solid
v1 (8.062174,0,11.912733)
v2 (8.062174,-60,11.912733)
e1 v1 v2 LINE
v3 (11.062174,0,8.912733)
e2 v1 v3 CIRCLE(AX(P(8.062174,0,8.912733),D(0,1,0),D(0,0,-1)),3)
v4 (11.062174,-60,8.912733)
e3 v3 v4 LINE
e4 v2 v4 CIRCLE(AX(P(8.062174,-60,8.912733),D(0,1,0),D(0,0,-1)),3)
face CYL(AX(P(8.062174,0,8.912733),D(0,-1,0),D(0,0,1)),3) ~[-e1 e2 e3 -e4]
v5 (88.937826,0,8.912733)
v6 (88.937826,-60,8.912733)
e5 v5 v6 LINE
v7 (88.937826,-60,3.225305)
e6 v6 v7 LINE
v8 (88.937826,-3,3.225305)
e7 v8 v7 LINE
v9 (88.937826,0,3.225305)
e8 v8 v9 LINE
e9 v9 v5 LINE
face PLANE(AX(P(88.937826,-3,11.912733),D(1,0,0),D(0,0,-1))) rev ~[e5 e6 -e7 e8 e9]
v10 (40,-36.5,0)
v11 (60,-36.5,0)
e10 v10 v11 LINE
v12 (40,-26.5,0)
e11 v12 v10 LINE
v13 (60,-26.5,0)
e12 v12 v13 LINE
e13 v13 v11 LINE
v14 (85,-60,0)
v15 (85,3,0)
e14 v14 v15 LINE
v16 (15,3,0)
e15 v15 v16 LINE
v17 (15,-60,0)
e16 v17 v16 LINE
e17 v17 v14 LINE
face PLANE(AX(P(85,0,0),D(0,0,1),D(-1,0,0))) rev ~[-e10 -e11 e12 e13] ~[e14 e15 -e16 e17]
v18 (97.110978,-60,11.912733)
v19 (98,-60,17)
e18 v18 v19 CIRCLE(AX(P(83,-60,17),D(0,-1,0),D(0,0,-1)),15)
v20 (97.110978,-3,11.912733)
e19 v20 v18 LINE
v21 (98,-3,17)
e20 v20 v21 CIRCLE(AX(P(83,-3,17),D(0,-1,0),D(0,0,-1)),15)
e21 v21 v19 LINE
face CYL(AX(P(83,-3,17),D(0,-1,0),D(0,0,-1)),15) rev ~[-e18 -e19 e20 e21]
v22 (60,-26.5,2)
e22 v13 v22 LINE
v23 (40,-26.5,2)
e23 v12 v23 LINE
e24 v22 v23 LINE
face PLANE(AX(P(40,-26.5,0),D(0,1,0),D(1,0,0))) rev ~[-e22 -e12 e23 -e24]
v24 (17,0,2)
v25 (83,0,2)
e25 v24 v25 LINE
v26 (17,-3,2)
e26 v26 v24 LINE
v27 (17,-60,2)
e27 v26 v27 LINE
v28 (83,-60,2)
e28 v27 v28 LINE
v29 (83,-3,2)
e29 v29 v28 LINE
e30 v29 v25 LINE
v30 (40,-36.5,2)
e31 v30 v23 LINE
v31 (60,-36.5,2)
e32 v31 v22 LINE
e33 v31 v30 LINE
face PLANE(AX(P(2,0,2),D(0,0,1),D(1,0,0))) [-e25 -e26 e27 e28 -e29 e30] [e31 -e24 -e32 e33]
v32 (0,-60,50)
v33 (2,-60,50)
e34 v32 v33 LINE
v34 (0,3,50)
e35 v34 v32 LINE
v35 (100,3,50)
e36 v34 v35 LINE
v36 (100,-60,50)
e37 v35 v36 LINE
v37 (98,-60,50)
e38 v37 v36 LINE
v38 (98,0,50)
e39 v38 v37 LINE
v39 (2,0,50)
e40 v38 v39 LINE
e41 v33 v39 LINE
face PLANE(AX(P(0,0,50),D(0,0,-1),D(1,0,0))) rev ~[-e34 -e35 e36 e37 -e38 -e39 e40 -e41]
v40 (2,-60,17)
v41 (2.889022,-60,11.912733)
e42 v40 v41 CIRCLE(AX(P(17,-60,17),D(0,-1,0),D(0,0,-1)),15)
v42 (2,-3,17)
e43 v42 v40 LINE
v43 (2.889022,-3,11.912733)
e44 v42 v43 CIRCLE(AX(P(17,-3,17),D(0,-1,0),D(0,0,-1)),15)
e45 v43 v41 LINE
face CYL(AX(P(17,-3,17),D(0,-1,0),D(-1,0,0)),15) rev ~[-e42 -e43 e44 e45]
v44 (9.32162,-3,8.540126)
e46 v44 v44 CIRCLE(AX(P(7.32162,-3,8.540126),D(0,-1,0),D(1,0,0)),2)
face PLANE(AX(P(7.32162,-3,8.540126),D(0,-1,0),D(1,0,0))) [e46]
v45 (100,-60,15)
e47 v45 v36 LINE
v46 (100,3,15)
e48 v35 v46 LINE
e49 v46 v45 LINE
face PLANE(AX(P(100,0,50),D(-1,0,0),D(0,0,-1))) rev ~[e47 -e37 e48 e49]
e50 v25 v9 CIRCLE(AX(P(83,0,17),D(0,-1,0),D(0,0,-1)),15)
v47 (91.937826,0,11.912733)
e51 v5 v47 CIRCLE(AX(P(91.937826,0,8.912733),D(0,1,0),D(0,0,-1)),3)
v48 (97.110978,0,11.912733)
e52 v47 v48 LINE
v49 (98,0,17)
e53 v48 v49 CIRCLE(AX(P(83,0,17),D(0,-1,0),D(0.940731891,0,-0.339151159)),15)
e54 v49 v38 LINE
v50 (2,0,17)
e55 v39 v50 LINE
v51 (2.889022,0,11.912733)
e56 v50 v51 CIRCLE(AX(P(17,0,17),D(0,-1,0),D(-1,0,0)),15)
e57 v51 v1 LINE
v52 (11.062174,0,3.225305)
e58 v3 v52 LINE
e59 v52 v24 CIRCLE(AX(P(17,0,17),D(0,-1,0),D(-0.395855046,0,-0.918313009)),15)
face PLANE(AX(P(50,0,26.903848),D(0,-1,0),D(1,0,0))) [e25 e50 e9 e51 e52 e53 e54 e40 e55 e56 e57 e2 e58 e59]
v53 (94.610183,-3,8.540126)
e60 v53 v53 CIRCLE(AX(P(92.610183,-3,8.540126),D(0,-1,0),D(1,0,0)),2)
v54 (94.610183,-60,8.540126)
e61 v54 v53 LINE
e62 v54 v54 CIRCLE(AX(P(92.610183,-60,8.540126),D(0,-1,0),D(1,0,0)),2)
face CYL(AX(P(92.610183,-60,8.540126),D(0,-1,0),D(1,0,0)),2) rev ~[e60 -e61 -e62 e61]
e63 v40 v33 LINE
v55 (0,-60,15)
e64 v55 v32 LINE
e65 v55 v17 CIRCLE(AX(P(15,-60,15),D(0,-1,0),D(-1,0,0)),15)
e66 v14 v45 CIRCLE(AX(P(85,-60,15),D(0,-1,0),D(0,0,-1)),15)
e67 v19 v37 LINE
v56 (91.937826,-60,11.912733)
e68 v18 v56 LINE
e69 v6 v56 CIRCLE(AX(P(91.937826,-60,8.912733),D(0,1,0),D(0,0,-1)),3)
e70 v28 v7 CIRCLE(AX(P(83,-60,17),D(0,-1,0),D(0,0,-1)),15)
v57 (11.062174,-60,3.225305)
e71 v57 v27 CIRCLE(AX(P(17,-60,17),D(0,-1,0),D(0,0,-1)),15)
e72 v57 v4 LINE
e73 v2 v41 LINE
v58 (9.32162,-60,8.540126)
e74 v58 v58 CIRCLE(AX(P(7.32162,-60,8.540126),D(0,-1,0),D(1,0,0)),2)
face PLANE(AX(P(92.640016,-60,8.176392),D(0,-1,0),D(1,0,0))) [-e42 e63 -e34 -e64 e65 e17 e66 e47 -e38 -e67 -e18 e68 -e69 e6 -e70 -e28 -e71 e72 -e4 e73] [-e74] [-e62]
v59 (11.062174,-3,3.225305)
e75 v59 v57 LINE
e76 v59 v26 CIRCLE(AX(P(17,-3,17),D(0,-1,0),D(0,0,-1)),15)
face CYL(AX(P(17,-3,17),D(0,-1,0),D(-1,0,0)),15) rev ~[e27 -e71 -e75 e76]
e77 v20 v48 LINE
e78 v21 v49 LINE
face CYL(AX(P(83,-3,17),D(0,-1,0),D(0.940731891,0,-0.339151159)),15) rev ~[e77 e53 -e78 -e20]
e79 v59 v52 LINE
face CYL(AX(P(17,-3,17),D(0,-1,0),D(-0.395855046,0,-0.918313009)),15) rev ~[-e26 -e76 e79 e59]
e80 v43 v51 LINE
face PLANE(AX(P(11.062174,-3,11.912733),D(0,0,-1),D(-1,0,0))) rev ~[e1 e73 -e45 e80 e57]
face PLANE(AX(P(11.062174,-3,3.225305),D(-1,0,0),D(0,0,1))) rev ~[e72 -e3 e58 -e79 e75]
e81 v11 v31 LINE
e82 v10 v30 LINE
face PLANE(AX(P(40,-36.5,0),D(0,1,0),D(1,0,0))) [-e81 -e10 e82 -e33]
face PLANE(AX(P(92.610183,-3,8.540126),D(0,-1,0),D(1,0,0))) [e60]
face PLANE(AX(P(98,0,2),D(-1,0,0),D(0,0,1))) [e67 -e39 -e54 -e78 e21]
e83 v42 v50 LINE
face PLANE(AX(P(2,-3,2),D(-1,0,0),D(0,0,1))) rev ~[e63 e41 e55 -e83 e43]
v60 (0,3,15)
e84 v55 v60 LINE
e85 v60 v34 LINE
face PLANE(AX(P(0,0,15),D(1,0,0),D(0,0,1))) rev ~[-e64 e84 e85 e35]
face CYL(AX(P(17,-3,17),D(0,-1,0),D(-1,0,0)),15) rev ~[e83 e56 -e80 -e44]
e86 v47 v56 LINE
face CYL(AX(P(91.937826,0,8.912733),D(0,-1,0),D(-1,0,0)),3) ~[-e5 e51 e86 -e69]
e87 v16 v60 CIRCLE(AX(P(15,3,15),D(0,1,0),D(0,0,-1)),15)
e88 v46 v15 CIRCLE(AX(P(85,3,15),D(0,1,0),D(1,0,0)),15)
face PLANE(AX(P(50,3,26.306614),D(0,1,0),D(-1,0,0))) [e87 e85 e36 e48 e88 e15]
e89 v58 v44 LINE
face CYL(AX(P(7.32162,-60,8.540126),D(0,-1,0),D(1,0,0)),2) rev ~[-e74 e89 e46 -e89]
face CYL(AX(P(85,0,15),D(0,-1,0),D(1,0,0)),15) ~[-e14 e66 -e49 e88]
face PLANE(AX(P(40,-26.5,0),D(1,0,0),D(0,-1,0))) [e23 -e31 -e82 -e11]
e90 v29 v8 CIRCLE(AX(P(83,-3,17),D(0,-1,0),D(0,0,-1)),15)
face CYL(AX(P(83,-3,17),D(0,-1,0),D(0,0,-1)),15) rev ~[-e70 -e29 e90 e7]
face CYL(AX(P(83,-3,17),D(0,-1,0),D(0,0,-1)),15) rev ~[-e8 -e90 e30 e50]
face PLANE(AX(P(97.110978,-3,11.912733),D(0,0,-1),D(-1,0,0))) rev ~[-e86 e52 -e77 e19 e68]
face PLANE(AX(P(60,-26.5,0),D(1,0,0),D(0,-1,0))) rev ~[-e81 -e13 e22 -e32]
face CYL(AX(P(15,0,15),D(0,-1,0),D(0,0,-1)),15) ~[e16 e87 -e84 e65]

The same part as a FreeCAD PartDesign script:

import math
import FreeCAD as App
import Part
import Sketcher
from FreeCAD import Vector


def edges_at(feature, points):
    """Names of the edges that pass closest to the given points."""
    edges = feature.Shape.Edges
    near = lambda p: min(range(len(edges)), key=lambda i: edges[i].distToShape(Part.Vertex(*p))[0])
    return sorted({f"Edge{near(p) + 1}" for p in points})

doc = App.newDocument("Part")
params = doc.addObject("Spreadsheet::Sheet", "Params")
for row, (alias, value) in enumerate([
    ("sketch1_width", "100 mm"),
    ("sketch1_width2", "96 mm"),
    ("sketch1_height", "50 mm"),
    ("sketch1_height2", "46 mm"),
    ("pad1_length", "65 mm"),
    ("sketch2_width", "100 mm"),
    ("pocket1_length", "62.6 mm"),
    ("sketch3_width", "100 mm"),
    ("sketch3_height", "50 mm"),
    ("pad2_length", "3 mm"),
    ("sketch4_width", "96 mm"),
    ("pocket2_length", "80.8 mm"),
    ("sketch5_width", "100 mm"),
    ("pad3_length", "5 mm"),
    ("pocket3_length", "2 mm"),
    ("sketch7_width", "20 mm"),
    ("sketch7_height", "10 mm"),
    ("pocket4_length", "25 mm"),
    ("sketch8_radius", "5 mm"),
    ("sketch8_diameter", "4.4 mm"),
    ("sketch8_height", "10 mm"),
    ("pad4_length", "3 mm"),
    ("fillet_radius", "5 mm"),
    ("fillet2_radius", "15 mm"),
    ("sketch9_diameter", "3 mm"),
    ("pocket5_length", "25 mm"),
    ("pad5_length", "57 mm"),
    ("sketch12_diameter", "4 mm"),
    ("pocket7_length", "57 mm"),
    ("sketch13_radius", "15 mm"),
    ("sketch13_width", "70 mm"),
    ("sketch13_height", "35 mm"),
    ("pad6_length", "3 mm"),
    ("sketch14_radius", "15 mm"),
    ("sketch14_width", "66 mm"),
    ("sketch14_height", "33 mm"),
    ("pocket8_length", "3 mm"),
    ("fillet3_radius", "3 mm"),
], start=1):
    params.set(f"A{row}", alias)
    params.set(f"B{row}", "=" + value)
    params.setAlias(f"B{row}", alias)

body = doc.addObject("PartDesign::Body", "Body")

# Sketch on XZ plane
sketch1 = body.newObject("Sketcher::SketchObject", "Sketch")
sketch1.AttachmentSupport = (doc.getObject("XZ_Plane"), [""])
sketch1.MapMode = "FlatFace"
sketch1.addGeometry([
    Part.LineSegment(Vector(0, 50, 0), Vector(0, 0, 0)),  # 0
    Part.LineSegment(Vector(0, 0, 0), Vector(100, 0, 0)),  # 1
    Part.LineSegment(Vector(100, 0, 0), Vector(100, 50, 0)),  # 2
    Part.LineSegment(Vector(100, 50, 0), Vector(0, 50, 0)),  # 3
    Part.LineSegment(Vector(98, 2, 0), Vector(2, 2, 0)),  # 4
    Part.LineSegment(Vector(2, 2, 0), Vector(2, 48, 0)),  # 5
    Part.LineSegment(Vector(2, 48, 0), Vector(98, 48, 0)),  # 6
    Part.LineSegment(Vector(98, 48, 0), Vector(98, 2, 0)),  # 7
], False)
sketch1.addConstraint([
    Sketcher.Constraint("Coincident", 0, 2, 1, 1),
    Sketcher.Constraint("Coincident", 1, 2, 2, 1),
    Sketcher.Constraint("Coincident", 2, 2, 3, 1),
    Sketcher.Constraint("Coincident", 3, 2, 0, 1),
    Sketcher.Constraint("Coincident", 4, 2, 5, 1),
    Sketcher.Constraint("Coincident", 5, 2, 6, 1),
    Sketcher.Constraint("Coincident", 6, 2, 7, 1),
    Sketcher.Constraint("Coincident", 7, 2, 4, 1),
    Sketcher.Constraint("Vertical", 0),
    Sketcher.Constraint("Horizontal", 1),
    Sketcher.Constraint("Vertical", 2),
    Sketcher.Constraint("Horizontal", 3),
    Sketcher.Constraint("Horizontal", 4),
    Sketcher.Constraint("Vertical", 5),
    Sketcher.Constraint("Horizontal", 6),
    Sketcher.Constraint("Vertical", 7),
    Sketcher.Constraint("Coincident", 0, 2, -1, 1),
    Sketcher.Constraint("DistanceX", 1, 1, 1, 2, 100.0),
    Sketcher.Constraint("DistanceX", 4, 2, 4, 1, 96.0),
    Sketcher.Constraint("DistanceY", 0, 2, 0, 1, 50.0),
    Sketcher.Constraint("DistanceY", 5, 1, 5, 2, 46.0),
    Sketcher.Constraint("DistanceX", -1, 1, 4, 2, 2.0),
    Sketcher.Constraint("DistanceY", -1, 1, 4, 2, 2.0),
])
sketch1.setExpression("Constraints[17]", "Params.sketch1_width")
sketch1.setExpression("Constraints[18]", "Params.sketch1_width2")
sketch1.setExpression("Constraints[19]", "Params.sketch1_height")
sketch1.setExpression("Constraints[20]", "Params.sketch1_height2")
pad1 = body.newObject("PartDesign::Pad", "Pad")
pad1.Profile = sketch1
pad1.setExpression("Length", "Params.pad1_length")

# Sketch on XZ plane
sketch2 = body.newObject("Sketcher::SketchObject", "Sketch001")
sketch2.AttachmentSupport = (doc.getObject("XZ_Plane"), [""])
sketch2.MapMode = "FlatFace"
sketch2.AttachmentOffset = App.Placement(Vector(0, 0, 65), App.Rotation())
sketch2.addGeometry([
    Part.LineSegment(Vector(0, 0, 0), Vector(0, -8.599863, 0)),
    Part.LineSegment(Vector(0, -8.599863, 0), Vector(100, -8.599863, 0)),
    Part.LineSegment(Vector(100, -8.599863, 0), Vector(100, 0, 0)),
    Part.LineSegment(Vector(100, 0, 0), Vector(0, 0, 0)),
], False)
sketch2.addConstraint([
    Sketcher.Constraint("Coincident", 0, 2, 1, 1),
    Sketcher.Constraint("Coincident", 1, 2, 2, 1),
    Sketcher.Constraint("Coincident", 2, 2, 3, 1),
    Sketcher.Constraint("Coincident", 3, 2, 0, 1),
    Sketcher.Constraint("Vertical", 0),
    Sketcher.Constraint("Horizontal", 1),
    Sketcher.Constraint("Vertical", 2),
    Sketcher.Constraint("Horizontal", 3),
    Sketcher.Constraint("Coincident", 3, 2, -1, 1),
    Sketcher.Constraint("DistanceX", 1, 1, 1, 2, 100.0),
    Sketcher.Constraint("DistanceY", 0, 2, 0, 1, 8.599863),
])
sketch2.setExpression("Constraints[9]", "Params.sketch2_width")
pocket1 = body.newObject("PartDesign::Pocket", "Pocket")
pocket1.Profile = sketch2
pocket1.setExpression("Length", "Params.pocket1_length")

# Sketch on XZ plane
sketch3 = body.newObject("Sketcher::SketchObject", "Sketch002")
sketch3.AttachmentSupport = (doc.getObject("XZ_Plane"), [""])
sketch3.MapMode = "FlatFace"
sketch3.addGeometry([
    Part.LineSegment(Vector(100, 50, 0), Vector(100, 0, 0)),
    Part.LineSegment(Vector(100, 0, 0), Vector(0, 0, 0)),
    Part.LineSegment(Vector(0, 0, 0), Vector(0, 50, 0)),
    Part.LineSegment(Vector(0, 50, 0), Vector(100, 50, 0)),
], False)
sketch3.addConstraint([
    Sketcher.Constraint("Coincident", 0, 2, 1, 1),
    Sketcher.Constraint("Coincident", 1, 2, 2, 1),
    Sketcher.Constraint("Coincident", 2, 2, 3, 1),
    Sketcher.Constraint("Coincident", 3, 2, 0, 1),
    Sketcher.Constraint("Vertical", 0),
    Sketcher.Constraint("Horizontal", 1),
    Sketcher.Constraint("Vertical", 2),
    Sketcher.Constraint("Horizontal", 3),
    Sketcher.Constraint("Coincident", 1, 2, -1, 1),
    Sketcher.Constraint("DistanceX", 1, 2, 1, 1, 100.0),
    Sketcher.Constraint("DistanceY", 0, 2, 0, 1, 50.0),
])
sketch3.setExpression("Constraints[9]", "Params.sketch3_width")
sketch3.setExpression("Constraints[10]", "Params.sketch3_height")
pad2 = body.newObject("PartDesign::Pad", "Pad001")
pad2.Profile = sketch3
pad2.setExpression("Length", "Params.pad2_length")

# Sketch on XZ plane
sketch4 = body.newObject("Sketcher::SketchObject", "Sketch003")
sketch4.AttachmentSupport = (doc.getObject("XZ_Plane"), [""])
sketch4.MapMode = "FlatFace"
sketch4.AttachmentOffset = App.Placement(Vector(0, 0, 3), App.Rotation())
sketch4.addGeometry([
    Part.LineSegment(Vector(2, 55.983376, 0), Vector(2, 2, 0)),
    Part.LineSegment(Vector(2, 2, 0), Vector(98, 2, 0)),
    Part.LineSegment(Vector(98, 2, 0), Vector(98, 55.983376, 0)),
    Part.LineSegment(Vector(98, 55.983376, 0), Vector(2, 55.983376, 0)),
], False)
sketch4.addConstraint([
    Sketcher.Constraint("Coincident", 0, 2, 1, 1),
    Sketcher.Constraint("Coincident", 1, 2, 2, 1),
    Sketcher.Constraint("Coincident", 2, 2, 3, 1),
    Sketcher.Constraint("Coincident", 3, 2, 0, 1),
    Sketcher.Constraint("Vertical", 0),
    Sketcher.Constraint("Horizontal", 1),
    Sketcher.Constraint("Vertical", 2),
    Sketcher.Constraint("Horizontal", 3),
    Sketcher.Constraint("DistanceX", 1, 1, 1, 2, 96.0),
    Sketcher.Constraint("DistanceX", -1, 1, 0, 2, 2.0),
    Sketcher.Constraint("DistanceY", -1, 1, 0, 2, 2.0),
    Sketcher.Constraint("DistanceY", 0, 2, 0, 1, 53.983376),
])
sketch4.setExpression("Constraints[8]", "Params.sketch4_width")
pocket2 = body.newObject("PartDesign::Pocket", "Pocket001")
pocket2.Profile = sketch4
pocket2.setExpression("Length", "Params.pocket2_length")
pocket2.Reversed = True

# Sketch on XZ plane
sketch5 = body.newObject("Sketcher::SketchObject", "Sketch004")
sketch5.AttachmentSupport = (doc.getObject("XZ_Plane"), [""])
sketch5.MapMode = "FlatFace"
sketch5.AttachmentOffset = App.Placement(Vector(0, 0, 65), App.Rotation())
sketch5.addGeometry([
    Part.LineSegment(Vector(0, 100, 0), Vector(0, 0, 0)),
    Part.LineSegment(Vector(0, 0, 0), Vector(100, 0, 0)),
    Part.LineSegment(Vector(100, 0, 0), Vector(100, 100, 0)),
    Part.LineSegment(Vector(100, 100, 0), Vector(0, 100, 0)),
], False)
sketch5.addConstraint([
    Sketcher.Constraint("Coincident", 0, 2, 1, 1),
    Sketcher.Constraint("Coincident", 1, 2, 2, 1),
    Sketcher.Constraint("Coincident", 2, 2, 3, 1),
    Sketcher.Constraint("Coincident", 3, 2, 0, 1),
    Sketcher.Constraint("Vertical", 0),
    Sketcher.Constraint("Horizontal", 1),
    Sketcher.Constraint("Vertical", 2),
    Sketcher.Constraint("Horizontal", 3),
    Sketcher.Constraint("Coincident", 0, 2, -1, 1),
    Sketcher.Constraint("Equal", 3, 0),
    Sketcher.Constraint("DistanceX", 1, 1, 1, 2, 100.0),
])
sketch5.setExpression("Constraints[10]", "Params.sketch5_width")
pad3 = body.newObject("PartDesign::Pad", "Pad002")
pad3.Profile = sketch5
pad3.setExpression("Length", "Params.pad3_length")
pad3.Reversed = True

# Sketch on XZ plane
sketch6 = body.newObject("Sketcher::SketchObject", "Sketch005")
sketch6.AttachmentSupport = (doc.getObject("XZ_Plane"), [""])
sketch6.MapMode = "FlatFace"
sketch6.AttachmentOffset = App.Placement(Vector(0, 0, 65), App.Rotation())
sketch6.addGeometry([
    Part.LineSegment(Vector(-47.050785, 135.277823, 0), Vector(-47.050785, -36.624499, 0)),
    Part.LineSegment(Vector(-47.050785, -36.624499, 0), Vector(131.936267, -36.624499, 0)),
    Part.LineSegment(Vector(131.936267, -36.624499, 0), Vector(131.936267, 135.277823, 0)),
    Part.LineSegment(Vector(131.936267, 135.277823, 0), Vector(-47.050785, 135.277823, 0)),
], False)
sketch6.addConstraint([
    Sketcher.Constraint("Coincident", 0, 2, 1, 1),
    Sketcher.Constraint("Coincident", 1, 2, 2, 1),
    Sketcher.Constraint("Coincident", 2, 2, 3, 1),
    Sketcher.Constraint("Coincident", 3, 2, 0, 1),
    Sketcher.Constraint("Vertical", 0),
    Sketcher.Constraint("Horizontal", 1),
    Sketcher.Constraint("Vertical", 2),
    Sketcher.Constraint("Horizontal", 3),
    Sketcher.Constraint("DistanceY", 0, 2, 0, 1, 171.902321),
    Sketcher.Constraint("DistanceY", 0, 2, -1, 1, 36.624499),
    Sketcher.Constraint("DistanceX", 1, 1, 1, 2, 178.987052),
    Sketcher.Constraint("DistanceX", 0, 2, -1, 1, 47.050785),
])
pocket3 = body.newObject("PartDesign::Pocket", "Pocket002")
pocket3.Profile = sketch6
pocket3.setExpression("Length", "Params.pocket3_length")

# Sketch on XY plane
sketch7 = body.newObject("Sketcher::SketchObject", "Sketch006")
sketch7.AttachmentSupport = (doc.getObject("XY_Plane"), [""])
sketch7.MapMode = "FlatFace"
sketch7.addGeometry([
    Part.LineSegment(Vector(40, -36.5, 0), Vector(40, -26.5, 0)),
    Part.LineSegment(Vector(40, -26.5, 0), Vector(60, -26.5, 0)),
    Part.LineSegment(Vector(60, -26.5, 0), Vector(60, -36.5, 0)),
    Part.LineSegment(Vector(60, -36.5, 0), Vector(40, -36.5, 0)),
], False)
sketch7.addConstraint([
    Sketcher.Constraint("Coincident", 0, 2, 1, 1),
    Sketcher.Constraint("Coincident", 1, 2, 2, 1),
    Sketcher.Constraint("Coincident", 2, 2, 3, 1),
    Sketcher.Constraint("Coincident", 3, 2, 0, 1),
    Sketcher.Constraint("Vertical", 0),
    Sketcher.Constraint("Horizontal", 1),
    Sketcher.Constraint("Vertical", 2),
    Sketcher.Constraint("Horizontal", 3),
    Sketcher.Constraint("DistanceX", 1, 1, 1, 2, 20.0),
    Sketcher.Constraint("DistanceY", 0, 1, 0, 2, 10.0),
    Sketcher.Constraint("DistanceX", -1, 1, 0, 2, 40.0),
    Sketcher.Constraint("DistanceY", 0, 2, -1, 1, 26.5),
])
sketch7.setExpression("Constraints[8]", "Params.sketch7_width")
sketch7.setExpression("Constraints[9]", "Params.sketch7_height")
pocket4 = body.newObject("PartDesign::Pocket", "Pocket003")
pocket4.Profile = sketch7
pocket4.setExpression("Length", "Params.pocket4_length")
pocket4.Reversed = True

# Sketch on XZ plane
sketch8 = body.newObject("Sketcher::SketchObject", "Sketch007")
sketch8.AttachmentSupport = (doc.getObject("XZ_Plane"), [""])
sketch8.MapMode = "FlatFace"
sketch8.AttachmentOffset = App.Placement(Vector(0, 0, 63), App.Rotation())
sketch8.addGeometry([
    Part.ArcOfCircle(Part.Circle(Vector(105.66751, 65.550245, 0), Vector(0, 0, 1), 5), math.radians(-93.81287), math.radians(-86.18713)),  # 0
    Part.ArcOfCircle(Part.Circle(Vector(105.66751, 65.550245, 0), Vector(0, 0, 1), 5), math.radians(-86.18713), math.radians(89.888212)),  # 1
    Part.LineSegment(Vector(105.677265, 70.550235, 0), Vector(100, 70.561312, 0)),  # 2
    Part.LineSegment(Vector(100, 70.561312, 0), Vector(100, 60.561312, 0)),  # 3
    Part.LineSegment(Vector(100, 60.561312, 0), Vector(105.33502, 60.561312, 0)),  # 4
    Part.Circle(Vector(105.66751, 65.550245, 0), Vector(0, 0, 1), 2.2),  # 5
    Part.LineSegment(Vector(0, 60.561312, 0), Vector(0, 70.561312, 0)),  # 6
    Part.LineSegment(Vector(0, 70.561312, 0), Vector(-5.677265, 70.550235, 0)),  # 7
    Part.ArcOfCircle(Part.Circle(Vector(-5.66751, 65.550245, 0), Vector(0, 0, 1), 5), math.radians(90.111788), math.radians(266.18713)),  # 8
    Part.ArcOfCircle(Part.Circle(Vector(-5.66751, 65.550245, 0), Vector(0, 0, 1), 5), math.radians(-93.81287), math.radians(-86.18713)),  # 9
    Part.LineSegment(Vector(-5.33502, 60.561312, 0), Vector(0, 60.561312, 0)),  # 10
    Part.Circle(Vector(-5.66751, 65.550245, 0), Vector(0, 0, 1), 2.2),  # 11
], False)
sketch8.addConstraint([
    Sketcher.Constraint("Tangent", 0, 2, 1, 1),
    Sketcher.Constraint("Tangent", 1, 2, 2, 1),
    Sketcher.Constraint("Coincident", 2, 2, 3, 1),
    Sketcher.Constraint("Coincident", 3, 2, 4, 1),
    Sketcher.Constraint("Coincident", 4, 2, 0, 1),
    Sketcher.Constraint("Coincident", 6, 2, 7, 1),
    Sketcher.Constraint("Tangent", 7, 2, 8, 1),
    Sketcher.Constraint("Tangent", 8, 2, 9, 1),
    Sketcher.Constraint("Coincident", 9, 2, 10, 1),
    Sketcher.Constraint("Coincident", 10, 2, 6, 1),
    Sketcher.Constraint("Vertical", 3),
    Sketcher.Constraint("Horizontal", 4),
    Sketcher.Constraint("Vertical", 6),
    Sketcher.Constraint("Horizontal", 10),
    Sketcher.Constraint("Coincident", 5, 3, 0, 3),
    Sketcher.Constraint("Coincident", 11, 3, 8, 3),
    Sketcher.Constraint("Equal", 0, 1),
    Sketcher.Constraint("Equal", 1, 8),
    Sketcher.Constraint("Equal", 8, 9),
    Sketcher.Constraint("Equal", 5, 11),
    Sketcher.Constraint("PointOnObject", 6, 2, -2),
    Sketcher.Constraint("Horizontal", 5, 3, 8, 3),
    Sketcher.Constraint("Horizontal", 0, 2, 3, 2),
    Sketcher.Constraint("Horizontal", 2, 2, 6, 2),
    Sketcher.Constraint("Horizontal", 4, 2, 8, 2),
    Sketcher.Constraint("Horizontal", 8, 2, 9, 2),
    Sketcher.Constraint("Equal", 4, 10),
    Sketcher.Constraint("Radius", 0, 5.0),
    Sketcher.Constraint("Diameter", 5, 4.4),
    Sketcher.Constraint("DistanceY", 3, 2, 3, 1, 10.0),
    Sketcher.Constraint("DistanceX", -1, 1, 0, 2, 106.0),
    Sketcher.Constraint("DistanceX", -1, 1, 2, 2, 100.0),
    Sketcher.Constraint("DistanceX", 4, 1, 4, 2, 5.33502),
    Sketcher.Constraint("DistanceY", -1, 1, 0, 3, 65.550245),
])
sketch8.setExpression("Constraints[27]", "Params.sketch8_radius")
sketch8.setExpression("Constraints[28]", "Params.sketch8_diameter")
sketch8.setExpression("Constraints[29]", "Params.sketch8_height")
pad4 = body.newObject("PartDesign::Pad", "Pad003")
pad4.Profile = sketch8
pad4.setExpression("Length", "Params.pad4_length")
pad4.Reversed = True
doc.recompute()

fillet = body.newObject("PartDesign::Fillet", "Fillet")
fillet.Base = (pad4, edges_at(pad4, [
    (100, -61.5, 60.561),
    (100, -61.5, 70.561),
    (0, -61.5, 60.561),
    (0, -61.5, 70.561),
]))
fillet.setExpression("Radius", "Params.fillet_radius")
doc.recompute()

fillet2 = body.newObject("PartDesign::Fillet", "Fillet001")
fillet2.Base = (fillet, edges_at(fillet, [
    (98, -31.5, 2),
    (2, -31.5, 2),
    (100, -31.5, 0),
    (0, -31.5, 0),
]))
fillet2.setExpression("Radius", "Params.fillet2_radius")

# Sketch on XZ plane
sketch9 = body.newObject("Sketcher::SketchObject", "Sketch008")
sketch9.AttachmentSupport = (doc.getObject("XZ_Plane"), [""])
sketch9.MapMode = "FlatFace"
sketch9.AttachmentOffset = App.Placement(Vector(0, 0, 63), App.Rotation())
sketch9.addGeometry([
    Part.Circle(Vector(85, 15, 0), Vector(0, 0, 1), 1.5),  # 0
    Part.Circle(Vector(85, 23, 0), Vector(0, 0, 1), 1.5),  # 1
    Part.Circle(Vector(85, 31, 0), Vector(0, 0, 1), 1.5),  # 2
    Part.Circle(Vector(85, 39, 0), Vector(0, 0, 1), 1.5),  # 3
    Part.Circle(Vector(85, 47, 0), Vector(0, 0, 1), 1.5),  # 4
    Part.Circle(Vector(77, 15, 0), Vector(0, 0, 1), 1.5),  # 5
    Part.Circle(Vector(77, 23, 0), Vector(0, 0, 1), 1.5),  # 6
    Part.Circle(Vector(77, 31, 0), Vector(0, 0, 1), 1.5),  # 7
    Part.Circle(Vector(77, 39, 0), Vector(0, 0, 1), 1.5),  # 8
    Part.Circle(Vector(77, 47, 0), Vector(0, 0, 1), 1.5),  # 9
    Part.Circle(Vector(69, 15, 0), Vector(0, 0, 1), 1.5),  # 10
    Part.Circle(Vector(69, 23, 0), Vector(0, 0, 1), 1.5),  # 11
    Part.Circle(Vector(69, 31, 0), Vector(0, 0, 1), 1.5),  # 12
    Part.Circle(Vector(69, 39, 0), Vector(0, 0, 1), 1.5),  # 13
    Part.Circle(Vector(69, 47, 0), Vector(0, 0, 1), 1.5),  # 14
    Part.Circle(Vector(61, 15, 0), Vector(0, 0, 1), 1.5),  # 15
    Part.Circle(Vector(61, 23, 0), Vector(0, 0, 1), 1.5),  # 16
    Part.Circle(Vector(61, 31, 0), Vector(0, 0, 1), 1.5),  # 17
    Part.Circle(Vector(61, 39, 0), Vector(0, 0, 1), 1.5),  # 18
    Part.Circle(Vector(61, 47, 0), Vector(0, 0, 1), 1.5),  # 19
    Part.Circle(Vector(53, 15, 0), Vector(0, 0, 1), 1.5),  # 20
    Part.Circle(Vector(53, 23, 0), Vector(0, 0, 1), 1.5),  # 21
    Part.Circle(Vector(53, 31, 0), Vector(0, 0, 1), 1.5),  # 22
    Part.Circle(Vector(53, 39, 0), Vector(0, 0, 1), 1.5),  # 23
    Part.Circle(Vector(53, 47, 0), Vector(0, 0, 1), 1.5),  # 24
    Part.Circle(Vector(45, 15, 0), Vector(0, 0, 1), 1.5),  # 25
    Part.Circle(Vector(45, 23, 0), Vector(0, 0, 1), 1.5),  # 26
    Part.Circle(Vector(45, 31, 0), Vector(0, 0, 1), 1.5),  # 27
    Part.Circle(Vector(45, 39, 0), Vector(0, 0, 1), 1.5),  # 28
    Part.Circle(Vector(45, 47, 0), Vector(0, 0, 1), 1.5),  # 29
    Part.Circle(Vector(37, 15, 0), Vector(0, 0, 1), 1.5),  # 30
    Part.Circle(Vector(37, 23, 0), Vector(0, 0, 1), 1.5),  # 31
    Part.Circle(Vector(37, 31, 0), Vector(0, 0, 1), 1.5),  # 32
    Part.Circle(Vector(37, 39, 0), Vector(0, 0, 1), 1.5),  # 33
    Part.Circle(Vector(37, 47, 0), Vector(0, 0, 1), 1.5),  # 34
    Part.Circle(Vector(29, 15, 0), Vector(0, 0, 1), 1.5),  # 35
    Part.Circle(Vector(29, 23, 0), Vector(0, 0, 1), 1.5),  # 36
    Part.Circle(Vector(29, 31, 0), Vector(0, 0, 1), 1.5),  # 37
    Part.Circle(Vector(29, 39, 0), Vector(0, 0, 1), 1.5),  # 38
    Part.Circle(Vector(29, 47, 0), Vector(0, 0, 1), 1.5),  # 39
    Part.Circle(Vector(21, 15, 0), Vector(0, 0, 1), 1.5),  # 40
    Part.Circle(Vector(21, 23, 0), Vector(0, 0, 1), 1.5),  # 41
    Part.Circle(Vector(21, 31, 0), Vector(0, 0, 1), 1.5),  # 42
    Part.Circle(Vector(21, 39, 0), Vector(0, 0, 1), 1.5),  # 43
    Part.Circle(Vector(21, 47, 0), Vector(0, 0, 1), 1.5),  # 44
    Part.Circle(Vector(13, 15, 0), Vector(0, 0, 1), 1.5),  # 45
    Part.Circle(Vector(13, 23, 0), Vector(0, 0, 1), 1.5),  # 46
    Part.Circle(Vector(13, 31, 0), Vector(0, 0, 1), 1.5),  # 47
    Part.Circle(Vector(13, 39, 0), Vector(0, 0, 1), 1.5),  # 48
    Part.Circle(Vector(13, 47, 0), Vector(0, 0, 1), 1.5),  # 49
], False)
sketch9.addConstraint([
    Sketcher.Constraint("Equal", 0, 1),
    Sketcher.Constraint("Equal", 1, 2),
    Sketcher.Constraint("Equal", 2, 3),
    Sketcher.Constraint("Equal", 3, 4),
    Sketcher.Constraint("Equal", 4, 5),
    Sketcher.Constraint("Equal", 5, 6),
    Sketcher.Constraint("Equal", 6, 7),
    Sketcher.Constraint("Equal", 7, 8),
    Sketcher.Constraint("Equal", 8, 9),
    Sketcher.Constraint("Equal", 9, 10),
    Sketcher.Constraint("Equal", 10, 11),
    Sketcher.Constraint("Equal", 11, 12),
    Sketcher.Constraint("Equal", 12, 13),
    Sketcher.Constraint("Equal", 13, 14),
    Sketcher.Constraint("Equal", 14, 15),
    Sketcher.Constraint("Equal", 15, 16),
    Sketcher.Constraint("Equal", 16, 17),
    Sketcher.Constraint("Equal", 17, 18),
    Sketcher.Constraint("Equal", 18, 19),
    Sketcher.Constraint("Equal", 19, 20),
    Sketcher.Constraint("Equal", 20, 21),
    Sketcher.Constraint("Equal", 21, 22),
    Sketcher.Constraint("Equal", 22, 23),
    Sketcher.Constraint("Equal", 23, 24),
    Sketcher.Constraint("Equal", 24, 25),
    Sketcher.Constraint("Equal", 25, 26),
    Sketcher.Constraint("Equal", 26, 27),
    Sketcher.Constraint("Equal", 27, 28),
    Sketcher.Constraint("Equal", 28, 29),
    Sketcher.Constraint("Equal", 29, 30),
    Sketcher.Constraint("Equal", 30, 31),
    Sketcher.Constraint("Equal", 31, 32),
    Sketcher.Constraint("Equal", 32, 33),
    Sketcher.Constraint("Equal", 33, 34),
    Sketcher.Constraint("Equal", 34, 35),
    Sketcher.Constraint("Equal", 35, 36),
    Sketcher.Constraint("Equal", 36, 37),
    Sketcher.Constraint("Equal", 37, 38),
    Sketcher.Constraint("Equal", 38, 39),
    Sketcher.Constraint("Equal", 39, 40),
    Sketcher.Constraint("Equal", 40, 41),
    Sketcher.Constraint("Equal", 41, 42),
    Sketcher.Constraint("Equal", 42, 43),
    Sketcher.Constraint("Equal", 43, 44),
    Sketcher.Constraint("Equal", 44, 45),
    Sketcher.Constraint("Equal", 45, 46),
    Sketcher.Constraint("Equal", 46, 47),
    Sketcher.Constraint("Equal", 47, 48),
    Sketcher.Constraint("Equal", 48, 49),
    Sketcher.Constraint("Horizontal", 0, 3, 5, 3),
    Sketcher.Constraint("Horizontal", 1, 3, 6, 3),
    Sketcher.Constraint("Horizontal", 2, 3, 7, 3),
    Sketcher.Constraint("Horizontal", 3, 3, 8, 3),
    Sketcher.Constraint("Horizontal", 4, 3, 9, 3),
    Sketcher.Constraint("Horizontal", 5, 3, 10, 3),
    Sketcher.Constraint("Horizontal", 6, 3, 11, 3),
    Sketcher.Constraint("Horizontal", 7, 3, 12, 3),
    Sketcher.Constraint("Horizontal", 8, 3, 13, 3),
    Sketcher.Constraint("Horizontal", 9, 3, 14, 3),
    Sketcher.Constraint("Horizontal", 10, 3, 15, 3),
    Sketcher.Constraint("Horizontal", 11, 3, 16, 3),
    Sketcher.Constraint("Horizontal", 12, 3, 17, 3),
    Sketcher.Constraint("Horizontal", 13, 3, 18, 3),
    Sketcher.Constraint("Horizontal", 14, 3, 19, 3),
    Sketcher.Constraint("Horizontal", 15, 3, 20, 3),
    Sketcher.Constraint("Horizontal", 16, 3, 21, 3),
    Sketcher.Constraint("Horizontal", 17, 3, 22, 3),
    Sketcher.Constraint("Horizontal", 18, 3, 23, 3),
    Sketcher.Constraint("Horizontal", 19, 3, 24, 3),
    Sketcher.Constraint("Horizontal", 20, 3, 25, 3),
    Sketcher.Constraint("Horizontal", 21, 3, 26, 3),
    Sketcher.Constraint("Horizontal", 22, 3, 27, 3),
    Sketcher.Constraint("Horizontal", 23, 3, 28, 3),
    Sketcher.Constraint("Horizontal", 24, 3, 29, 3),
    Sketcher.Constraint("Horizontal", 25, 3, 30, 3),
    Sketcher.Constraint("Horizontal", 26, 3, 31, 3),
    Sketcher.Constraint("Horizontal", 27, 3, 32, 3),
    Sketcher.Constraint("Horizontal", 28, 3, 33, 3),
    Sketcher.Constraint("Horizontal", 29, 3, 34, 3),
    Sketcher.Constraint("Horizontal", 30, 3, 35, 3),
    Sketcher.Constraint("Horizontal", 31, 3, 36, 3),
    Sketcher.Constraint("Horizontal", 32, 3, 37, 3),
    Sketcher.Constraint("Horizontal", 33, 3, 38, 3),
    Sketcher.Constraint("Horizontal", 34, 3, 39, 3),
    Sketcher.Constraint("Horizontal", 35, 3, 40, 3),
    Sketcher.Constraint("Horizontal", 36, 3, 41, 3),
    Sketcher.Constraint("Horizontal", 37, 3, 42, 3),
    Sketcher.Constraint("Horizontal", 38, 3, 43, 3),
    Sketcher.Constraint("Horizontal", 39, 3, 44, 3),
    Sketcher.Constraint("Horizontal", 40, 3, 45, 3),
    Sketcher.Constraint("Horizontal", 41, 3, 46, 3),
    Sketcher.Constraint("Horizontal", 42, 3, 47, 3),
    Sketcher.Constraint("Horizontal", 43, 3, 48, 3),
    Sketcher.Constraint("Horizontal", 44, 3, 49, 3),
    Sketcher.Constraint("Vertical", 0, 3, 1, 3),
    Sketcher.Constraint("Vertical", 1, 3, 2, 3),
    Sketcher.Constraint("Vertical", 2, 3, 3, 3),
    Sketcher.Constraint("Vertical", 3, 3, 4, 3),
    Sketcher.Constraint("Vertical", 5, 3, 6, 3),
    Sketcher.Constraint("Vertical", 6, 3, 7, 3),
    Sketcher.Constraint("Vertical", 7, 3, 8, 3),
    Sketcher.Constraint("Vertical", 8, 3, 9, 3),
    Sketcher.Constraint("Vertical", 10, 3, 11, 3),
    Sketcher.Constraint("Vertical", 11, 3, 12, 3),
    Sketcher.Constraint("Vertical", 12, 3, 13, 3),
    Sketcher.Constraint("Vertical", 13, 3, 14, 3),
    Sketcher.Constraint("Vertical", 15, 3, 16, 3),
    Sketcher.Constraint("Vertical", 16, 3, 17, 3),
    Sketcher.Constraint("Vertical", 17, 3, 18, 3),
    Sketcher.Constraint("Vertical", 18, 3, 19, 3),
    Sketcher.Constraint("Vertical", 20, 3, 21, 3),
    Sketcher.Constraint("Vertical", 21, 3, 22, 3),
    Sketcher.Constraint("Vertical", 22, 3, 23, 3),
    Sketcher.Constraint("Vertical", 23, 3, 24, 3),
    Sketcher.Constraint("Vertical", 25, 3, 26, 3),
    Sketcher.Constraint("Vertical", 26, 3, 27, 3),
    Sketcher.Constraint("Vertical", 27, 3, 28, 3),
    Sketcher.Constraint("Vertical", 28, 3, 29, 3),
    Sketcher.Constraint("Vertical", 30, 3, 31, 3),
    Sketcher.Constraint("Vertical", 31, 3, 32, 3),
    Sketcher.Constraint("Vertical", 32, 3, 33, 3),
    Sketcher.Constraint("Vertical", 33, 3, 34, 3),
    Sketcher.Constraint("Vertical", 35, 3, 36, 3),
    Sketcher.Constraint("Vertical", 36, 3, 37, 3),
    Sketcher.Constraint("Vertical", 37, 3, 38, 3),
    Sketcher.Constraint("Vertical", 38, 3, 39, 3),
    Sketcher.Constraint("Vertical", 40, 3, 41, 3),
    Sketcher.Constraint("Vertical", 41, 3, 42, 3),
    Sketcher.Constraint("Vertical", 42, 3, 43, 3),
    Sketcher.Constraint("Vertical", 43, 3, 44, 3),
    Sketcher.Constraint("Vertical", 45, 3, 46, 3),
    Sketcher.Constraint("Vertical", 46, 3, 47, 3),
    Sketcher.Constraint("Vertical", 47, 3, 48, 3),
    Sketcher.Constraint("Vertical", 48, 3, 49, 3),
    Sketcher.Constraint("Diameter", 0, 3.0),
    Sketcher.Constraint("DistanceX", -1, 1, 0, 3, 85.0),
    Sketcher.Constraint("DistanceY", -1, 1, 0, 3, 15.0),
    Sketcher.Constraint("DistanceY", -1, 1, 1, 3, 23.0),
    Sketcher.Constraint("DistanceY", -1, 1, 2, 3, 31.0),
    Sketcher.Constraint("DistanceY", -1, 1, 3, 3, 39.0),
    Sketcher.Constraint("DistanceY", -1, 1, 4, 3, 47.0),
    Sketcher.Constraint("DistanceX", -1, 1, 5, 3, 77.0),
    Sketcher.Constraint("DistanceX", -1, 1, 10, 3, 69.0),
    Sketcher.Constraint("DistanceX", -1, 1, 15, 3, 61.0),
    Sketcher.Constraint("DistanceX", -1, 1, 20, 3, 53.0),
    Sketcher.Constraint("DistanceX", -1, 1, 25, 3, 45.0),
    Sketcher.Constraint("DistanceX", -1, 1, 30, 3, 37.0),
    Sketcher.Constraint("DistanceX", -1, 1, 35, 3, 29.0),
    Sketcher.Constraint("DistanceX", -1, 1, 40, 3, 21.0),
    Sketcher.Constraint("DistanceX", -1, 1, 45, 3, 13.0),
])
sketch9.setExpression("Constraints[134]", "Params.sketch9_diameter")
pocket5 = body.newObject("PartDesign::Pocket", "Pocket004")
pocket5.Profile = sketch9
pocket5.setExpression("Length", "Params.pocket5_length")

# Sketch on YZ plane
sketch10 = body.newObject("Sketcher::SketchObject", "Sketch009")
sketch10.AttachmentSupport = (doc.getObject("YZ_Plane"), [""])
sketch10.MapMode = "FlatFace"
sketch10.addGeometry([
    Part.LineSegment(Vector(-60, 100, 0), Vector(-60, -17.161491, 0)),
    Part.LineSegment(Vector(-60, -17.161491, 0), Vector(-78.033549, -17.161491, 0)),
    Part.LineSegment(Vector(-78.033549, -17.161491, 0), Vector(-78.033549, 100, 0)),
    Part.LineSegment(Vector(-78.033549, 100, 0), Vector(-60, 100, 0)),
], False)
sketch10.addConstraint([
    Sketcher.Constraint("Coincident", 0, 2, 1, 1),
    Sketcher.Constraint("Coincident", 1, 2, 2, 1),
    Sketcher.Constraint("Coincident", 2, 2, 3, 1),
    Sketcher.Constraint("Coincident", 3, 2, 0, 1),
    Sketcher.Constraint("Vertical", 0),
    Sketcher.Constraint("Horizontal", 1),
    Sketcher.Constraint("Vertical", 2),
    Sketcher.Constraint("Horizontal", 3),
    Sketcher.Constraint("DistanceX", 0, 2, -1, 1, 60.0),
    Sketcher.Constraint("DistanceY", -1, 1, 2, 2, 100.0),
    Sketcher.Constraint("DistanceX", 1, 2, 1, 1, 18.033549),
    Sketcher.Constraint("DistanceY", 0, 2, 0, 1, 117.161491),
])
pocket6 = body.newObject("PartDesign::Pocket", "Pocket005")
pocket6.Profile = sketch10
pocket6.Type = "ThroughAll"
pocket6.Midplane = True

# Sketch on XZ plane
sketch11 = body.newObject("Sketcher::SketchObject", "Sketch010")
sketch11.AttachmentSupport = (doc.getObject("XZ_Plane"), [""])
sketch11.MapMode = "FlatFace"
sketch11.AttachmentOffset = App.Placement(Vector(0, 0, 3), App.Rotation())
sketch11.addGeometry([
    Part.LineSegment(Vector(88.937826, 11.912733, 0), Vector(88.937826, 3.225305, 0)),  # 0
    Part.LineSegment(Vector(88.937826, 3.225305, 0), Vector(97.110978, 6.168619, 0)),  # 1
    Part.LineSegment(Vector(97.110978, 6.168619, 0), Vector(97.110978, 11.912733, 0)),  # 2
    Part.LineSegment(Vector(97.110978, 11.912733, 0), Vector(88.937826, 11.912733, 0)),  # 3
    Part.LineSegment(Vector(2.889022, 11.912733, 0), Vector(2.889022, 6.168619, 0)),  # 4
    Part.LineSegment(Vector(2.889022, 6.168619, 0), Vector(11.062174, 3.225305, 0)),  # 5
    Part.LineSegment(Vector(11.062174, 3.225305, 0), Vector(11.062174, 11.912733, 0)),  # 6
    Part.LineSegment(Vector(11.062174, 11.912733, 0), Vector(2.889022, 11.912733, 0)),  # 7
], False)
sketch11.addConstraint([
    Sketcher.Constraint("Coincident", 0, 2, 1, 1),
    Sketcher.Constraint("Coincident", 1, 2, 2, 1),
    Sketcher.Constraint("Coincident", 2, 2, 3, 1),
    Sketcher.Constraint("Coincident", 3, 2, 0, 1),
    Sketcher.Constraint("Coincident", 4, 2, 5, 1),
    Sketcher.Constraint("Coincident", 5, 2, 6, 1),
    Sketcher.Constraint("Coincident", 6, 2, 7, 1),
    Sketcher.Constraint("Coincident", 7, 2, 4, 1),
    Sketcher.Constraint("Vertical", 0),
    Sketcher.Constraint("Vertical", 2),
    Sketcher.Constraint("Horizontal", 3),
    Sketcher.Constraint("Vertical", 4),
    Sketcher.Constraint("Vertical", 6),
    Sketcher.Constraint("Horizontal", 7),
    Sketcher.Constraint("Horizontal", 1, 2, 4, 2),
    Sketcher.Constraint("Horizontal", 0, 2, 5, 2),
    Sketcher.Constraint("Horizontal", 3, 2, 6, 2),
    Sketcher.Constraint("Equal", 3, 7),
    Sketcher.Constraint("DistanceX", 3, 2, 3, 1, 8.173153),
    Sketcher.Constraint("DistanceY", 0, 2, 0, 1, 8.687428),
    Sketcher.Constraint("DistanceY", 2, 1, 2, 2, 5.744114),
    Sketcher.Constraint("DistanceX", -1, 1, 1, 2, 97.110978),
    Sketcher.Constraint("DistanceY", -1, 1, 1, 2, 6.168619),
    Sketcher.Constraint("DistanceX", -1, 1, 4, 2, 2.889022),
])
pad5 = body.newObject("PartDesign::Pad", "Pad004")
pad5.Profile = sketch11
pad5.setExpression("Length", "Params.pad5_length")

# Sketch on XZ plane
sketch12 = body.newObject("Sketcher::SketchObject", "Sketch011")
sketch12.AttachmentSupport = (doc.getObject("XZ_Plane"), [""])
sketch12.MapMode = "FlatFace"
sketch12.AttachmentOffset = App.Placement(Vector(0, 0, 60), App.Rotation())
sketch12.addGeometry([
    Part.Circle(Vector(92.610183, 8.540126, 0), Vector(0, 0, 1), 2),
    Part.Circle(Vector(7.32162, 8.540126, 0), Vector(0, 0, 1), 2),
], False)
sketch12.addConstraint([
    Sketcher.Constraint("Equal", 0, 1),
    Sketcher.Constraint("Horizontal", 0, 3, 1, 3),
    Sketcher.Constraint("Diameter", 0, 4.0),
    Sketcher.Constraint("DistanceX", -1, 1, 1, 3, 7.32162),
    Sketcher.Constraint("DistanceX", -1, 1, 0, 3, 92.610183),
    Sketcher.Constraint("DistanceY", -1, 1, 0, 3, 8.540126),
])
sketch12.setExpression("Constraints[2]", "Params.sketch12_diameter")
pocket7 = body.newObject("PartDesign::Pocket", "Pocket006")
pocket7.Profile = sketch12
pocket7.setExpression("Length", "Params.pocket7_length")

# Sketch on XZ plane
sketch13 = body.newObject("Sketcher::SketchObject", "Sketch012")
sketch13.AttachmentSupport = (doc.getObject("XZ_Plane"), [""])
sketch13.MapMode = "FlatFace"
sketch13.addGeometry([
    Part.ArcOfCircle(Part.Circle(Vector(85, 15, 0), Vector(0, 0, 1), 15), math.radians(-90), math.radians(0)),  # 0
    Part.LineSegment(Vector(85, 0, 0), Vector(15, 0, 0)),  # 1
    Part.ArcOfCircle(Part.Circle(Vector(15, 15, 0), Vector(0, 0, 1), 15), math.radians(180), math.radians(270)),  # 2
    Part.LineSegment(Vector(0, 15, 0), Vector(0, 50, 0)),  # 3
    Part.LineSegment(Vector(0, 50, 0), Vector(100, 50, 0)),  # 4
    Part.LineSegment(Vector(100, 50, 0), Vector(100, 15, 0)),  # 5
], False)
sketch13.addConstraint([
    Sketcher.Constraint("Tangent", 0, 1, 1, 1),
    Sketcher.Constraint("Tangent", 1, 2, 2, 2),
    Sketcher.Constraint("Tangent", 2, 1, 3, 1),
    Sketcher.Constraint("Coincident", 3, 2, 4, 1),
    Sketcher.Constraint("Coincident", 4, 2, 5, 1),
    Sketcher.Constraint("Tangent", 5, 2, 0, 2),
    Sketcher.Constraint("Horizontal", 1),
    Sketcher.Constraint("Vertical", 3),
    Sketcher.Constraint("Horizontal", 4),
    Sketcher.Constraint("Vertical", 5),
    Sketcher.Constraint("Equal", 0, 2),
    Sketcher.Constraint("PointOnObject", 0, 1, -1),
    Sketcher.Constraint("PointOnObject", 2, 1, -2),
    Sketcher.Constraint("Radius", 0, 15.0),
    Sketcher.Constraint("DistanceX", 1, 2, 1, 1, 70.0),
    Sketcher.Constraint("DistanceY", 3, 1, 3, 2, 35.0),
])
sketch13.setExpression("Constraints[13]", "Params.sketch13_radius")
sketch13.setExpression("Constraints[14]", "Params.sketch13_width")
sketch13.setExpression("Constraints[15]", "Params.sketch13_height")
pad6 = body.newObject("PartDesign::Pad", "Pad005")
pad6.Profile = sketch13
pad6.setExpression("Length", "Params.pad6_length")
pad6.Reversed = True

# Sketch on XZ plane
sketch14 = body.newObject("Sketcher::SketchObject", "Sketch013")
sketch14.AttachmentSupport = (doc.getObject("XZ_Plane"), [""])
sketch14.MapMode = "FlatFace"
sketch14.AttachmentOffset = App.Placement(Vector(0, 0, 3), App.Rotation())
sketch14.addGeometry([
    Part.ArcOfCircle(Part.Circle(Vector(17, 17, 0), Vector(0, 0, 1), 15), math.radians(180), math.radians(199.825167)),  # 0
    Part.LineSegment(Vector(2.889022, 11.912733, 0), Vector(11.062174, 11.912733, 0)),  # 1
    Part.LineSegment(Vector(11.062174, 11.912733, 0), Vector(11.062174, 3.225305, 0)),  # 2
    Part.ArcOfCircle(Part.Circle(Vector(17, 17, 0), Vector(0, 0, 1), 15), math.radians(-113.319312), math.radians(-90)),  # 3
    Part.LineSegment(Vector(17, 2, 0), Vector(83, 2, 0)),  # 4
    Part.ArcOfCircle(Part.Circle(Vector(83, 17, 0), Vector(0, 0, 1), 15), math.radians(-90), math.radians(-66.680688)),  # 5
    Part.LineSegment(Vector(88.937826, 3.225305, 0), Vector(88.937826, 11.912733, 0)),  # 6
    Part.LineSegment(Vector(88.937826, 11.912733, 0), Vector(97.110978, 11.912733, 0)),  # 7
    Part.ArcOfCircle(Part.Circle(Vector(83, 17, 0), Vector(0, 0, 1), 15), math.radians(-19.825167), math.radians(0)),  # 8
    Part.LineSegment(Vector(98, 17, 0), Vector(98, 50, 0)),  # 9
    Part.LineSegment(Vector(98, 50, 0), Vector(2, 50, 0)),  # 10
    Part.LineSegment(Vector(2, 50, 0), Vector(2, 17, 0)),  # 11
], False)
sketch14.addConstraint([
    Sketcher.Constraint("Coincident", 0, 2, 1, 1),
    Sketcher.Constraint("Coincident", 1, 2, 2, 1),
    Sketcher.Constraint("Coincident", 2, 2, 3, 1),
    Sketcher.Constraint("Tangent", 3, 2, 4, 1),
    Sketcher.Constraint("Tangent", 4, 2, 5, 1),
    Sketcher.Constraint("Coincident", 5, 2, 6, 1),
    Sketcher.Constraint("Coincident", 6, 2, 7, 1),
    Sketcher.Constraint("Coincident", 7, 2, 8, 1),
    Sketcher.Constraint("Tangent", 8, 2, 9, 1),
    Sketcher.Constraint("Coincident", 9, 2, 10, 1),
    Sketcher.Constraint("Coincident", 10, 2, 11, 1),
    Sketcher.Constraint("Tangent", 11, 2, 0, 1),
    Sketcher.Constraint("Horizontal", 1),
    Sketcher.Constraint("Vertical", 2),
    Sketcher.Constraint("Horizontal", 4),
    Sketcher.Constraint("Vertical", 6),
    Sketcher.Constraint("Horizontal", 7),
    Sketcher.Constraint("Vertical", 9),
    Sketcher.Constraint("Horizontal", 10),
    Sketcher.Constraint("Vertical", 11),
    Sketcher.Constraint("Coincident", 3, 3, 0, 3),
    Sketcher.Constraint("Coincident", 8, 3, 5, 3),
    Sketcher.Constraint("Equal", 0, 3),
    Sketcher.Constraint("Equal", 3, 5),
    Sketcher.Constraint("Equal", 5, 8),
    Sketcher.Constraint("Horizontal", 2, 2, 5, 2),
    Sketcher.Constraint("Horizontal", 1, 2, 6, 2),
    Sketcher.Constraint("Radius", 0, 15.0),
    Sketcher.Constraint("DistanceX", 4, 1, 4, 2, 66.0),
    Sketcher.Constraint("DistanceY", 9, 1, 9, 2, 33.0),
    Sketcher.Constraint("DistanceX", -1, 1, 0, 3, 17.0),
    Sketcher.Constraint("DistanceY", -1, 1, 0, 3, 17.0),
    Sketcher.Constraint("DistanceX", 1, 1, 1, 2, 8.173153),
    Sketcher.Constraint("DistanceY", 2, 2, 2, 1, 8.687428),
])
sketch14.setExpression("Constraints[27]", "Params.sketch14_radius")
sketch14.setExpression("Constraints[28]", "Params.sketch14_width")
sketch14.setExpression("Constraints[29]", "Params.sketch14_height")
pocket8 = body.newObject("PartDesign::Pocket", "Pocket007")
pocket8.Profile = sketch14
pocket8.setExpression("Length", "Params.pocket8_length")
doc.recompute()

fillet3 = body.newObject("PartDesign::Fillet", "Fillet002")
fillet3.Base = (pocket8, edges_at(pocket8, [(88.938, -30, 11.913), (11.062, -30, 11.913)]))
fillet3.setExpression("Radius", "Params.fillet3_radius")

doc.recompute()
